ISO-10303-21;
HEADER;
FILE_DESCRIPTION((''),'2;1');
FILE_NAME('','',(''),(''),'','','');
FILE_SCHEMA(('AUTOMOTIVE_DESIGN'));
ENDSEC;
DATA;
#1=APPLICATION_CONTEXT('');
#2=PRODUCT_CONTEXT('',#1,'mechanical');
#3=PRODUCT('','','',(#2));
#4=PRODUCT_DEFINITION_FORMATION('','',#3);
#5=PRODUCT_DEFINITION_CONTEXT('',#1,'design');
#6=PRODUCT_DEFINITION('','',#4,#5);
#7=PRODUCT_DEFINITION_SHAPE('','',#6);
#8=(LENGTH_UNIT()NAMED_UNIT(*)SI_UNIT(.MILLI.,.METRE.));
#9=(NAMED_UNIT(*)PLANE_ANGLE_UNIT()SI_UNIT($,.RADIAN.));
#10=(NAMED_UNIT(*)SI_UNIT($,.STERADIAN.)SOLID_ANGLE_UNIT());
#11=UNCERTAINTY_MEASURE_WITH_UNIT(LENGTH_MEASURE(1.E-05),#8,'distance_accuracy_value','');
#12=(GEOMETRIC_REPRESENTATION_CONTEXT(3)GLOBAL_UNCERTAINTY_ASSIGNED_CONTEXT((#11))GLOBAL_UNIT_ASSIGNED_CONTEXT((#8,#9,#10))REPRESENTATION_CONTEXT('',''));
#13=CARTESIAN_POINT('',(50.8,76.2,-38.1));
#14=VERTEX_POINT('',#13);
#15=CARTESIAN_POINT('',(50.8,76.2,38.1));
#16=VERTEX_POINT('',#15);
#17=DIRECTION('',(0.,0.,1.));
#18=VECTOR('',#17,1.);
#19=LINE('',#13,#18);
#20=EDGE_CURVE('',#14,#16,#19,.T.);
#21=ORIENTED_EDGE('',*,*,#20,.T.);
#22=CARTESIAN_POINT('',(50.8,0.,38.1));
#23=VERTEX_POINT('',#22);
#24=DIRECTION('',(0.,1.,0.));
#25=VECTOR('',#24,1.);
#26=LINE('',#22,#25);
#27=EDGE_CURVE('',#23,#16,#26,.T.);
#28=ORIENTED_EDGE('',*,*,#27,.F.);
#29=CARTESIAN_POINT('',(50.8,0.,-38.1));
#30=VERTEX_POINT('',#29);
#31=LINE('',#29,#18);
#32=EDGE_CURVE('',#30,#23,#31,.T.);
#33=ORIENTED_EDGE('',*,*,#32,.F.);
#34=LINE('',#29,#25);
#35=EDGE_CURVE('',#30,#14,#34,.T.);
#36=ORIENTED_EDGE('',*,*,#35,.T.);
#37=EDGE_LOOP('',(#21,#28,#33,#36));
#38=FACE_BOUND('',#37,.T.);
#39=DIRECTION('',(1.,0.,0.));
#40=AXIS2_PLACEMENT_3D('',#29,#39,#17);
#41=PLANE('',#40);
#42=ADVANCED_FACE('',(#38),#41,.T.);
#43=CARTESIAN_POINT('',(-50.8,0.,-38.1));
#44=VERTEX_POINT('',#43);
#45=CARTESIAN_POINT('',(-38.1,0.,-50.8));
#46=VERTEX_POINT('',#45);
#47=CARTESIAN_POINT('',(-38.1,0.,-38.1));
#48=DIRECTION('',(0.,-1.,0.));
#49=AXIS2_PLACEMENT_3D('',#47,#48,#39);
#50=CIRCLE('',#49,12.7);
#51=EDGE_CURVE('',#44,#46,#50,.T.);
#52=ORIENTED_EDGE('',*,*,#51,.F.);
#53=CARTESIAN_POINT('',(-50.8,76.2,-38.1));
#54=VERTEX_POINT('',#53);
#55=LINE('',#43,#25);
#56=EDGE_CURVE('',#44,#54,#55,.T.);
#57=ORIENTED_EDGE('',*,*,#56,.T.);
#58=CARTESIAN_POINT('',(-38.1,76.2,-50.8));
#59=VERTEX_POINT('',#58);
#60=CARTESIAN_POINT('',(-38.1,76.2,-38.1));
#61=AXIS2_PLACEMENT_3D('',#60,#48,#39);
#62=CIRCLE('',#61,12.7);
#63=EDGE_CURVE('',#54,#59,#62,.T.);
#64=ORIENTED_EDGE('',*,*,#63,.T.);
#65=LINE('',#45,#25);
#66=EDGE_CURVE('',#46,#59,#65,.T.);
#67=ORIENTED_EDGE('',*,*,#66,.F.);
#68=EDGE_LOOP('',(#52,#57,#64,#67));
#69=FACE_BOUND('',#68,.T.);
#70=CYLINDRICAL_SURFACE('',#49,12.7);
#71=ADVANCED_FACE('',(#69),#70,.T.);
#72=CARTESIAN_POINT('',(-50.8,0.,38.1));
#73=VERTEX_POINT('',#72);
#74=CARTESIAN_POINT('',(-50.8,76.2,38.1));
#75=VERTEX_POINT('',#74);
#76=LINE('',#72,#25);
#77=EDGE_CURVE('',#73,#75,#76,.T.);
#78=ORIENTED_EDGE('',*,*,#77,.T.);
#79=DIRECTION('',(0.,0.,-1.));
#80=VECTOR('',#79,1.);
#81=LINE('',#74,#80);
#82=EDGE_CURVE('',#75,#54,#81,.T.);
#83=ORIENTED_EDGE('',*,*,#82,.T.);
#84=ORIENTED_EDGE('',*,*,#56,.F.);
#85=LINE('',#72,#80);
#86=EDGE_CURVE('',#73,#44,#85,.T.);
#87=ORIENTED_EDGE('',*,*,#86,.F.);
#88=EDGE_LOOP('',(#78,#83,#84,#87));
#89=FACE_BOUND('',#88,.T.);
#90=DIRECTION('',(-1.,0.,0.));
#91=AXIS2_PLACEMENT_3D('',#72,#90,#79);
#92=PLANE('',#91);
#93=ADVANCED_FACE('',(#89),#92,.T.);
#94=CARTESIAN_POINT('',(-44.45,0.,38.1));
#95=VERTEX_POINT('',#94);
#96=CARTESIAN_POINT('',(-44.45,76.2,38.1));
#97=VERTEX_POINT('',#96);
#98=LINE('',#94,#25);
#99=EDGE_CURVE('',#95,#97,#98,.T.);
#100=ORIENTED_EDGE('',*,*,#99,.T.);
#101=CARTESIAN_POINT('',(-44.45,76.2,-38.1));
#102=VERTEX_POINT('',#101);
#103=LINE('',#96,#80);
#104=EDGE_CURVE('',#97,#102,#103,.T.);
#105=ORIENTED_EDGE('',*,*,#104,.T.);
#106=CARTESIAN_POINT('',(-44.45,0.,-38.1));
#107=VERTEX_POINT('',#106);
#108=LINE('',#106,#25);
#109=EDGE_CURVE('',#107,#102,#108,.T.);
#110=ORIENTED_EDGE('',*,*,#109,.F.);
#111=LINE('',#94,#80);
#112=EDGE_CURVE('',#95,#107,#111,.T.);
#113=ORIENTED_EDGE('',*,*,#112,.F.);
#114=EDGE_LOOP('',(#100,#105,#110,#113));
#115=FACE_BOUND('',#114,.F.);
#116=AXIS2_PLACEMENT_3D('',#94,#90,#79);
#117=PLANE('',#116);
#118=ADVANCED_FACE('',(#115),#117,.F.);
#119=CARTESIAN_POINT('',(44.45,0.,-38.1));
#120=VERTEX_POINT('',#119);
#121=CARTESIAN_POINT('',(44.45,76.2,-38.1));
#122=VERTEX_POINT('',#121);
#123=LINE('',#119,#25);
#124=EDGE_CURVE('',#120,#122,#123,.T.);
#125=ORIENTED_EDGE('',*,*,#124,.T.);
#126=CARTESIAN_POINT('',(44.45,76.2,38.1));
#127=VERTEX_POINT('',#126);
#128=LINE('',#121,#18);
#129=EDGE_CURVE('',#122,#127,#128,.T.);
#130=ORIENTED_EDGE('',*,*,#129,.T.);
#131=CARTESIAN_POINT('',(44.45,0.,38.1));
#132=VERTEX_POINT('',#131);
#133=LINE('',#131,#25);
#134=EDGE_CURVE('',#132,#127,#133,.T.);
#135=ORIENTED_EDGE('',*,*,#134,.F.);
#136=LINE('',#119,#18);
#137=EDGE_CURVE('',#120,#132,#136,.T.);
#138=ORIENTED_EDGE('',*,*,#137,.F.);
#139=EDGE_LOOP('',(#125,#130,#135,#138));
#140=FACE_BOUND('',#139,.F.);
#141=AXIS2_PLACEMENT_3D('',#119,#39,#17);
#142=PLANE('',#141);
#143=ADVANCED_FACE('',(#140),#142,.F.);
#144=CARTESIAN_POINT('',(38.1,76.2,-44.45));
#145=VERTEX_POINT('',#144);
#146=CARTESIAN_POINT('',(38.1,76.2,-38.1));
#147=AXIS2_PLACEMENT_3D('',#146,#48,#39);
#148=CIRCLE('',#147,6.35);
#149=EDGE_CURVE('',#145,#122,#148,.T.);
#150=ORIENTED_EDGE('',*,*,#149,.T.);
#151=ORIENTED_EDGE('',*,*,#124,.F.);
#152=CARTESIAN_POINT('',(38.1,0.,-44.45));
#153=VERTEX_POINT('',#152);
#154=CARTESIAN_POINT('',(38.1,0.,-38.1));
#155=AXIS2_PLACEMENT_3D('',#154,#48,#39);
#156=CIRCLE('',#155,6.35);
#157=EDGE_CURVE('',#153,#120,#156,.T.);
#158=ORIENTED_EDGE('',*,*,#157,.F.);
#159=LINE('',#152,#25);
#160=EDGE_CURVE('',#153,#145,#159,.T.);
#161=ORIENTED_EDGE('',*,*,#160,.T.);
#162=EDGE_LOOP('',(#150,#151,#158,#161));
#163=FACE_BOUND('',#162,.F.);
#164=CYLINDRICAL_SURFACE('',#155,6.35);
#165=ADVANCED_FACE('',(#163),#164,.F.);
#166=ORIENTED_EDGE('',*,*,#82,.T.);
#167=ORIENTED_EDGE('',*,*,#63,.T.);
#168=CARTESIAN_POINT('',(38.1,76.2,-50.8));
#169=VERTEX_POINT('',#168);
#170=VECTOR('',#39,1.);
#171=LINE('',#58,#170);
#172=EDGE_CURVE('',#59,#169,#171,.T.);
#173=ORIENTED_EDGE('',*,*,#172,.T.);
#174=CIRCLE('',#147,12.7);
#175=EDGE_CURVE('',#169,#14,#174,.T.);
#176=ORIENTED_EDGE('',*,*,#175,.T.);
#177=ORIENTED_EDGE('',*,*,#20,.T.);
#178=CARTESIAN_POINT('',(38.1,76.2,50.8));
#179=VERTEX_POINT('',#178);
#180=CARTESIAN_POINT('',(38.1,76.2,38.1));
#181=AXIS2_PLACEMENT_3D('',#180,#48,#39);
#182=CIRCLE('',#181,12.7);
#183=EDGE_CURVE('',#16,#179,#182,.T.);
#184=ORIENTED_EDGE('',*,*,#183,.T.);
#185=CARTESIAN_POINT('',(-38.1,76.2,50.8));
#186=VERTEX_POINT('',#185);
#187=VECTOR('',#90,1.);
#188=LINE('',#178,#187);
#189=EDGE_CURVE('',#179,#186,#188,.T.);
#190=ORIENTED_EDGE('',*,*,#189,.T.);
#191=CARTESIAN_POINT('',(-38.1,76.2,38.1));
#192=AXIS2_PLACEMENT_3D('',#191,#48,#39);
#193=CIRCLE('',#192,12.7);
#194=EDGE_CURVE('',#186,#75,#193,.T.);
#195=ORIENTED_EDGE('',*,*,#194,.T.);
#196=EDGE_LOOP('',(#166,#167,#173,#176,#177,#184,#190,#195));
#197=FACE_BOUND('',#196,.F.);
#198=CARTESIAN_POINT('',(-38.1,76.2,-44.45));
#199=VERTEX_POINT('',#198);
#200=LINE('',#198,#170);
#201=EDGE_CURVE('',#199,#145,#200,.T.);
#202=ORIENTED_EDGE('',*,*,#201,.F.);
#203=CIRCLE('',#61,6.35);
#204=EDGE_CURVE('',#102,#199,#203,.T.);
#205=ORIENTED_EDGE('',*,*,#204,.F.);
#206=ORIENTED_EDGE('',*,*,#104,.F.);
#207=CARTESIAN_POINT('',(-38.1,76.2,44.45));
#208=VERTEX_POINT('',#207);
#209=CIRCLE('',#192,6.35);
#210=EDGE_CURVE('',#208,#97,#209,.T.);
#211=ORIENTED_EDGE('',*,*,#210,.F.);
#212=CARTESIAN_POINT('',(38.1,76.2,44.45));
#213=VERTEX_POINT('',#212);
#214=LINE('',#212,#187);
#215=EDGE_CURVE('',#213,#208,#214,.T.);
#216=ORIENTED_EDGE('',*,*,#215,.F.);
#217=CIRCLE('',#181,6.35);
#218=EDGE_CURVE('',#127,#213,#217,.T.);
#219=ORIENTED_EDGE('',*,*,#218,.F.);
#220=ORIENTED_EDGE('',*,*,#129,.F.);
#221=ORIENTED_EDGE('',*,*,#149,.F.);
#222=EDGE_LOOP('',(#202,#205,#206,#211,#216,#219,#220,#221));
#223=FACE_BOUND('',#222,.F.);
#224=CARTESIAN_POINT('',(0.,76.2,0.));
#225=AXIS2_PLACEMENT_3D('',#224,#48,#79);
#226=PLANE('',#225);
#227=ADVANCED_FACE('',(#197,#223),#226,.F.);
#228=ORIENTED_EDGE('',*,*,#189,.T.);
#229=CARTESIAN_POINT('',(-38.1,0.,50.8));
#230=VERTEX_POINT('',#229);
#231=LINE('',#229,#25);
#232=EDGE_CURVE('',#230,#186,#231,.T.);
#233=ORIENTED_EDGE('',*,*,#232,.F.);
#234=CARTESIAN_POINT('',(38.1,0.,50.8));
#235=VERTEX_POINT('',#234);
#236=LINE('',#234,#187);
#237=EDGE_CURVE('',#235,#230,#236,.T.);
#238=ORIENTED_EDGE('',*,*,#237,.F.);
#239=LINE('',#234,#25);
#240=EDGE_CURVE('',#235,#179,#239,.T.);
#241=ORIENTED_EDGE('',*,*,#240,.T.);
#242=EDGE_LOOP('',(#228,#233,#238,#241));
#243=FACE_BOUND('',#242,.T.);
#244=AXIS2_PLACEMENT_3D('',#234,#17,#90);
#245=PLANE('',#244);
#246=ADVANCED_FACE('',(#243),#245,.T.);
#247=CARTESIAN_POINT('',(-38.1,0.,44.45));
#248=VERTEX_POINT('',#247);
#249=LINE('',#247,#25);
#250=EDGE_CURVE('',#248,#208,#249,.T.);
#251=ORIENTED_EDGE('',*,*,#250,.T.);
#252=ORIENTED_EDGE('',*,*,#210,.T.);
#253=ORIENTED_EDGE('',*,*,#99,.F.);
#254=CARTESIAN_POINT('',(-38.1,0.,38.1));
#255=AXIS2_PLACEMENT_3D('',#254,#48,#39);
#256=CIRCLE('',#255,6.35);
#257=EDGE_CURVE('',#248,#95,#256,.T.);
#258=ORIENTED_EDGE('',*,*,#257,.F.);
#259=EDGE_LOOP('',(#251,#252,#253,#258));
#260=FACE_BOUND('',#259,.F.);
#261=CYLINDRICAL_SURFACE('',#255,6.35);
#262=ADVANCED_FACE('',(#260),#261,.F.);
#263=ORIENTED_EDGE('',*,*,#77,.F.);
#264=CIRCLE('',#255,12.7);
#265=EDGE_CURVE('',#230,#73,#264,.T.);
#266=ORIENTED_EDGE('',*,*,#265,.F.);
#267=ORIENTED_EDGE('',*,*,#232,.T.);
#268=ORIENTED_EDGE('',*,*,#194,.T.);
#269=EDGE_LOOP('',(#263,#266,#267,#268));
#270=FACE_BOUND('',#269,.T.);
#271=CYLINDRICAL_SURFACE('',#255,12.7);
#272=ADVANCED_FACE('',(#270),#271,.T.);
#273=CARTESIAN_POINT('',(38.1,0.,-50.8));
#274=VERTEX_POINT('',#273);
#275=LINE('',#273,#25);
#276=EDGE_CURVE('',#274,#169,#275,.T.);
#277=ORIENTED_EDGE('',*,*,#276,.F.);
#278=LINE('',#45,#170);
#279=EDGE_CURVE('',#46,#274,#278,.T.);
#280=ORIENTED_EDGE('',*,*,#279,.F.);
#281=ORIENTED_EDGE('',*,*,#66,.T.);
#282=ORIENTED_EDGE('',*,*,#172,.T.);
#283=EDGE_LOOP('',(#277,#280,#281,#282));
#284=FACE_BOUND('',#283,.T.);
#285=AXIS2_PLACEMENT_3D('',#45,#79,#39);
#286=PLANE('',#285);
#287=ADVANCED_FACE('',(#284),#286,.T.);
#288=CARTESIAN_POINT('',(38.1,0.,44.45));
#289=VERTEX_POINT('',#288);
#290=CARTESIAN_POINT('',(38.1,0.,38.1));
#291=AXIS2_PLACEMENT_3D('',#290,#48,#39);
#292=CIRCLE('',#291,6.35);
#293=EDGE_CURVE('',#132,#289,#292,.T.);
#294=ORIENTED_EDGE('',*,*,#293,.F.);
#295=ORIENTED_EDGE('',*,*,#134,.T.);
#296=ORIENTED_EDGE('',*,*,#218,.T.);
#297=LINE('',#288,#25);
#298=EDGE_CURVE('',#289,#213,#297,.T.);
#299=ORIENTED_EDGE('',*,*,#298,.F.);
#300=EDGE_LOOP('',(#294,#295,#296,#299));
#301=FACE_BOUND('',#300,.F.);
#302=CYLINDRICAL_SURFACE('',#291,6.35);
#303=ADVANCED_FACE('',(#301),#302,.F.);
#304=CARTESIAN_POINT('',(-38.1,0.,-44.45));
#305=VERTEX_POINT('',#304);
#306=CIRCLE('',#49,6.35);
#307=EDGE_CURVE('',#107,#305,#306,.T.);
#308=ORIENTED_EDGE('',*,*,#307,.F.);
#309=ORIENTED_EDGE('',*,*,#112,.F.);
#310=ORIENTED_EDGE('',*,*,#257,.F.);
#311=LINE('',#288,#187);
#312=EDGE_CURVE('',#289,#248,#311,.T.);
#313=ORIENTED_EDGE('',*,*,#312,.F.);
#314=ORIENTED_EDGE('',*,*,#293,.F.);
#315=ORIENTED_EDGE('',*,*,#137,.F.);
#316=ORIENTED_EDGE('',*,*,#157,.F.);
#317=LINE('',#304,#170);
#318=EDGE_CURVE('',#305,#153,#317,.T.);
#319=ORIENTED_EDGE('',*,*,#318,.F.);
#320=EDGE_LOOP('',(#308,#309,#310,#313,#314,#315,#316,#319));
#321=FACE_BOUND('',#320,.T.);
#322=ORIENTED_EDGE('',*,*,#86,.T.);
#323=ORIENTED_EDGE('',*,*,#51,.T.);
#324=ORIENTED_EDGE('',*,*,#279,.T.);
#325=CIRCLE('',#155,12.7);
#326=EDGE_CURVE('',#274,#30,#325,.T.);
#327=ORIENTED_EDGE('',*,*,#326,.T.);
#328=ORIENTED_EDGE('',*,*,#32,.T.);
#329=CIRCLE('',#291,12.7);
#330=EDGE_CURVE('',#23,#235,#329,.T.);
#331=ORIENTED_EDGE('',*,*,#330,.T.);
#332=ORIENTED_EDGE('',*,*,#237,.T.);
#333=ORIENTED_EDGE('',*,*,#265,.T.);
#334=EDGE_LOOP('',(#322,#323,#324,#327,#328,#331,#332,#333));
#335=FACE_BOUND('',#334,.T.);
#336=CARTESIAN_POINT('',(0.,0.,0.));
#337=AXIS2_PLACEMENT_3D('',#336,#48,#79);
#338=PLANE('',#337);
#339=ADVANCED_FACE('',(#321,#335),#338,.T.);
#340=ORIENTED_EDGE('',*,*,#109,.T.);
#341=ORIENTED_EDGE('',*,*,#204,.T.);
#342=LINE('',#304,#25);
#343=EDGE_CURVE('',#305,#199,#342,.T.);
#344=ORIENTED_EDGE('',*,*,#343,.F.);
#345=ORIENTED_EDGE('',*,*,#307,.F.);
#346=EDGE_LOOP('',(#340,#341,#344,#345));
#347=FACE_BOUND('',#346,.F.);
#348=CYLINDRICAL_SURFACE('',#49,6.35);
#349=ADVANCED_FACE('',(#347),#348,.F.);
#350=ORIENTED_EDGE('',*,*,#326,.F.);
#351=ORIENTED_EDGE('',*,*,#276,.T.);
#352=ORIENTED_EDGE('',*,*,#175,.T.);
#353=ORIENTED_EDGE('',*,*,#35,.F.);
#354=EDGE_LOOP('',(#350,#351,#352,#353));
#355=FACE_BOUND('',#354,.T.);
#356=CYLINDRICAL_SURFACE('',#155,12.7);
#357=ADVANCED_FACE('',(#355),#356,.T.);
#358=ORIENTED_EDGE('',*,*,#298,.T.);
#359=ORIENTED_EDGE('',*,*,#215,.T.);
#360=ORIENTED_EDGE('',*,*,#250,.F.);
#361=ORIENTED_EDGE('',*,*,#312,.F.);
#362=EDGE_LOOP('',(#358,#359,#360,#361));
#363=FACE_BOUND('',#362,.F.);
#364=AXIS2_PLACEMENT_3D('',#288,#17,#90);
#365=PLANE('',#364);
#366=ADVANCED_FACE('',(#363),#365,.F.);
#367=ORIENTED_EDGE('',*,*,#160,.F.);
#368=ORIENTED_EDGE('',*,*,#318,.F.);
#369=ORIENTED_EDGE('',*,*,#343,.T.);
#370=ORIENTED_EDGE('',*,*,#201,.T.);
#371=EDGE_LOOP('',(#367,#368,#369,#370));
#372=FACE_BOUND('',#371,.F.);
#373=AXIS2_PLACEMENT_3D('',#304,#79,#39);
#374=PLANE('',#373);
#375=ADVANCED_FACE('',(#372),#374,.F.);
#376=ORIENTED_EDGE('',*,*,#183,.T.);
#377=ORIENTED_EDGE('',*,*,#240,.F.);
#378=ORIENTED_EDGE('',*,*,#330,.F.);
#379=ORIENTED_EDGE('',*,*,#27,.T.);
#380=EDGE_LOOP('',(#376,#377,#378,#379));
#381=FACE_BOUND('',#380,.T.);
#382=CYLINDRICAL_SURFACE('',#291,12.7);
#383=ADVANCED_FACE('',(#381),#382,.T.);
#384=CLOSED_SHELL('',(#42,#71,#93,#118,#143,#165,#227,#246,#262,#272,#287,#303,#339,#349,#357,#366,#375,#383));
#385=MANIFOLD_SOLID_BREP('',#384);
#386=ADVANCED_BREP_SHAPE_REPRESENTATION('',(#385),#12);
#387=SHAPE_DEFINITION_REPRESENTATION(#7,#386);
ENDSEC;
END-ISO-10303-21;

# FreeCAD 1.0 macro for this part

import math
import FreeCAD as App
import Part
import Sketcher
from FreeCAD import Vector
Q = App.Units.Quantity

doc = App.newDocument("Part")
params = doc.addObject("Spreadsheet::Sheet", "Params")
for row, (alias, value) in enumerate([
    ("sketch1_radius", "0.5 in"),
    ("sketch1_width", "3 in"),
    ("sketch1_radius2", "0.25 in"),
    ("pad1_length", "3 in"),
], start=1):
    params.set(f"A{row}", alias)
    params.set(f"B{row}", "=" + value)
    params.setAlias(f"B{row}", alias)

body = doc.addObject("PartDesign::Body", "Body")

sketch1 = body.newObject("Sketcher::SketchObject", "Sketch")
sketch1.AttachmentSupport = (doc.getObject("XZ_Plane"), [""])
sketch1.MapMode = "FlatFace"
sketch1.addGeometry([
    Part.LineSegment(Vector(-51, 38, 0), Vector(-51, -38, 0)),
    Part.ArcOfCircle(Part.Circle(Vector(-38, -38, 0), Vector(0, 0, 1), 13), math.radians(180), math.radians(270)),
    Part.LineSegment(Vector(-38, -51, 0), Vector(38, -51, 0)),
    Part.ArcOfCircle(Part.Circle(Vector(38, -38, 0), Vector(0, 0, 1), 13), math.radians(-90), math.radians(0)),
    Part.LineSegment(Vector(51, -38, 0), Vector(51, 38, 0)),
    Part.ArcOfCircle(Part.Circle(Vector(38, 38, 0), Vector(0, 0, 1), 13), math.radians(0), math.radians(90)),
    Part.LineSegment(Vector(38, 51, 0), Vector(-38, 51, 0)),
    Part.ArcOfCircle(Part.Circle(Vector(-38, 38, 0), Vector(0, 0, 1), 13), math.radians(90), math.radians(180)),
    Part.LineSegment(Vector(-44, -38, 0), Vector(-44, 38, 0)),
    Part.ArcOfCircle(Part.Circle(Vector(-38, 38, 0), Vector(0, 0, 1), 6), math.radians(90), math.radians(180)),
    Part.LineSegment(Vector(-38, 44, 0), Vector(38, 44, 0)),
    Part.ArcOfCircle(Part.Circle(Vector(38, 38, 0), Vector(0, 0, 1), 6), math.radians(0), math.radians(90)),
    Part.LineSegment(Vector(44, 38, 0), Vector(44, -38, 0)),
    Part.ArcOfCircle(Part.Circle(Vector(38, -38, 0), Vector(0, 0, 1), 6), math.radians(-90), math.radians(0)),
    Part.LineSegment(Vector(38, -44, 0), Vector(-38, -44, 0)),
    Part.ArcOfCircle(Part.Circle(Vector(-38, -38, 0), Vector(0, 0, 1), 6), math.radians(180), math.radians(270)),
], False)
sketch1.addConstraint([
    Sketcher.Constraint("Tangent", 0, 2, 1, 1),
    Sketcher.Constraint("Tangent", 1, 2, 2, 1),
    Sketcher.Constraint("Tangent", 2, 2, 3, 1),
    Sketcher.Constraint("Tangent", 3, 2, 4, 1),
    Sketcher.Constraint("Tangent", 4, 2, 5, 1),
    Sketcher.Constraint("Tangent", 5, 2, 6, 1),
    Sketcher.Constraint("Tangent", 6, 2, 7, 1),
    Sketcher.Constraint("Tangent", 7, 2, 0, 1),
    Sketcher.Constraint("Tangent", 8, 2, 9, 2),
    Sketcher.Constraint("Tangent", 9, 1, 10, 1),
    Sketcher.Constraint("Tangent", 10, 2, 11, 2),
    Sketcher.Constraint("Tangent", 11, 1, 12, 1),
    Sketcher.Constraint("Tangent", 12, 2, 13, 2),
    Sketcher.Constraint("Tangent", 13, 1, 14, 1),
    Sketcher.Constraint("Tangent", 14, 2, 15, 2),
    Sketcher.Constraint("Tangent", 15, 1, 8, 1),
    Sketcher.Constraint("Vertical", 0),
    Sketcher.Constraint("Horizontal", 2),
    Sketcher.Constraint("Vertical", 4),
    Sketcher.Constraint("Horizontal", 6),
    Sketcher.Constraint("Vertical", 8),
    Sketcher.Constraint("Horizontal", 10),
    Sketcher.Constraint("Vertical", 12),
    Sketcher.Constraint("Horizontal", 14),
    Sketcher.Constraint("Coincident", 9, 3, 7, 3),
    Sketcher.Constraint("Coincident", 11, 3, 5, 3),
    Sketcher.Constraint("Coincident", 13, 3, 3, 3),
    Sketcher.Constraint("Equal", 1, 3),
    Sketcher.Constraint("Equal", 3, 5),
    Sketcher.Constraint("Equal", 5, 7),
    Sketcher.Constraint("Equal", 13, 15),
    Sketcher.Constraint("Symmetric", 1, 3, 5, 3, -1, 1),
    Sketcher.Constraint("Equal", 14, 0),
    Sketcher.Constraint("Radius", 1, Q("0.5 in")),
    Sketcher.Constraint("DistanceX", 2, 1, 2, 2, Q("3 in")),
    Sketcher.Constraint("Radius", 9, Q("0.25 in")),
])
sketch1.setExpression("Constraints[33]", "Params.sketch1_radius")
sketch1.setExpression("Constraints[34]", "Params.sketch1_width")
sketch1.setExpression("Constraints[35]", "Params.sketch1_radius2")
pad1 = body.newObject("PartDesign::Pad", "Pad")
pad1.Profile = sketch1
pad1.setExpression("Length", "Params.pad1_length")
pad1.Reversed = True

doc.recompute()
